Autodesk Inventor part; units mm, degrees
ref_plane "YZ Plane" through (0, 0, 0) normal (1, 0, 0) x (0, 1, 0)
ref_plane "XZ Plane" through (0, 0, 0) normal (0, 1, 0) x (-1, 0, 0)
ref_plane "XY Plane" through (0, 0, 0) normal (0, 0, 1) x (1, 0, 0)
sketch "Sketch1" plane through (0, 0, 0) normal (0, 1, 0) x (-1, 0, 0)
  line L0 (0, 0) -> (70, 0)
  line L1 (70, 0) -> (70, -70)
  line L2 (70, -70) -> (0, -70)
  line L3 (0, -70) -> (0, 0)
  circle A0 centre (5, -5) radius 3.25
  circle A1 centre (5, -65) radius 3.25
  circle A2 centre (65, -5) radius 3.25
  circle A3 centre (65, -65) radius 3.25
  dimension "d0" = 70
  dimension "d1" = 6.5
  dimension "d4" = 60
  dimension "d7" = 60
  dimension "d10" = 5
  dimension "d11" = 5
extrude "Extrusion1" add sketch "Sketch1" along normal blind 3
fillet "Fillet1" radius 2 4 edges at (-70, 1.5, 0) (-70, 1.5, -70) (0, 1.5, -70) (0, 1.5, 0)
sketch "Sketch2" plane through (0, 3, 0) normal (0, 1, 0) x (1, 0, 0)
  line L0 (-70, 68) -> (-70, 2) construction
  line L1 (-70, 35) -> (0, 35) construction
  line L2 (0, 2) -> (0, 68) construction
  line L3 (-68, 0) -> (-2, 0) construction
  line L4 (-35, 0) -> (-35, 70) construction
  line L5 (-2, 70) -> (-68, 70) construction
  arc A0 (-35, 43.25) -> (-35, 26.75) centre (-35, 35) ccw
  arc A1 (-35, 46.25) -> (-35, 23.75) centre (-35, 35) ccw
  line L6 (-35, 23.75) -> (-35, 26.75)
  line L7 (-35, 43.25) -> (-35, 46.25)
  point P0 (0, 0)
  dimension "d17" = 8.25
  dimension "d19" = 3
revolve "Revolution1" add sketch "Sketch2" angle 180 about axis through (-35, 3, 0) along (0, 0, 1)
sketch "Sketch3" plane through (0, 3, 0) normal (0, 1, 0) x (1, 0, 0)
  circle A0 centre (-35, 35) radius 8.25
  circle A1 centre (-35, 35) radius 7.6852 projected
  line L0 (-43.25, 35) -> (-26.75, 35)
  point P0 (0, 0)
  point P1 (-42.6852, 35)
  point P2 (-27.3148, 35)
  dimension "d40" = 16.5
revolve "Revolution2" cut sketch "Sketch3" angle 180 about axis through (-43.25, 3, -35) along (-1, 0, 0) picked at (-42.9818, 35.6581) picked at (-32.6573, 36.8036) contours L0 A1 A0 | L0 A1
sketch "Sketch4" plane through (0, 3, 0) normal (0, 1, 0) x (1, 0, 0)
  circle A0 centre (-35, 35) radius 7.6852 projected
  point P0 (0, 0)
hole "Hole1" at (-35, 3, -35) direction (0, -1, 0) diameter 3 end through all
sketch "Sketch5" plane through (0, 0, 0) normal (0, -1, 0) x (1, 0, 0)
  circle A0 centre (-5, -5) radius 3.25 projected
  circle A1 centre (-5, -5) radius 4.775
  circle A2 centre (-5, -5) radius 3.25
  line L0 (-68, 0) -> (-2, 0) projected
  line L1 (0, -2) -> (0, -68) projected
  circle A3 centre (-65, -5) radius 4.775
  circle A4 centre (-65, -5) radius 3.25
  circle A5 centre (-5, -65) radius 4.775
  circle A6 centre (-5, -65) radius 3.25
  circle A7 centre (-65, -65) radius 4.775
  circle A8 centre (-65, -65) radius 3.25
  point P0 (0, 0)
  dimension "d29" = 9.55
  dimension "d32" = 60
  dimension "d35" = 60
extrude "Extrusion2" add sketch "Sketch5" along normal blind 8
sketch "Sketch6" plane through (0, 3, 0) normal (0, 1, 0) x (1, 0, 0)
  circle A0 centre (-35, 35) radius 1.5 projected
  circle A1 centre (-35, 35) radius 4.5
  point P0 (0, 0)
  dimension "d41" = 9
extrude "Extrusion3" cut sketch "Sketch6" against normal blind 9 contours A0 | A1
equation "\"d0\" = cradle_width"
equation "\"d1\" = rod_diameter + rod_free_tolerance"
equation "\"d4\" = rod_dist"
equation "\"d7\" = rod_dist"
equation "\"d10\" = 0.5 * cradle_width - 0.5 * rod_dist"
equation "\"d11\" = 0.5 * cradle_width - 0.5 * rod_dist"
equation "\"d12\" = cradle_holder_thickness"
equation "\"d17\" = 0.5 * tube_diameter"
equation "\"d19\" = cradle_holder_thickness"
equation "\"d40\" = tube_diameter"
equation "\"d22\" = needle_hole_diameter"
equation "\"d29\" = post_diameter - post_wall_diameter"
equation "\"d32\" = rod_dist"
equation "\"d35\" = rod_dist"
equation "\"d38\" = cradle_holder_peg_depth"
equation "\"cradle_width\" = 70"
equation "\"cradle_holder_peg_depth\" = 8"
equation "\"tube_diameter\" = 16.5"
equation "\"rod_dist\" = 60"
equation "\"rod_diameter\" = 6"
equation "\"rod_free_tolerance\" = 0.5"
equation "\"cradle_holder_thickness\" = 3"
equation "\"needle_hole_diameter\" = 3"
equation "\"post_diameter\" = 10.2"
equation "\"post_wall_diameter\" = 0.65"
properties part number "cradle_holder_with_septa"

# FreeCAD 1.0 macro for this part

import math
import FreeCAD as App
import Part
import Sketcher
Q = App.Units.Quantity


def edges_at(feature, points):
    """Names of the edges that pass closest to the given points."""
    edges = feature.Shape.Edges
    near = lambda p: min(range(len(edges)), key=lambda i: edges[i].distToShape(Part.Vertex(*p))[0])
    return sorted({f"Edge{near(p) + 1}" for p in points})


def add_polygon(sketch, points):
    """Adds a closed chain of lines whose ends are joined by coincident constraints."""
    first, n = sketch.GeometryCount, len(points)
    for a, b in zip(points, points[1:] + points[:1]):
        sketch.addGeometry(Part.LineSegment(App.Vector(*a, 0), App.Vector(*b, 0)), False)
    for i in range(n):
        sketch.addConstraint(Sketcher.Constraint("Coincident", first + i, 2, first + (i + 1) % n, 1))

doc = App.newDocument("Part")
body = doc.addObject("PartDesign::Body", "Body")

sketch1 = body.newObject("Sketcher::SketchObject", "Sketch")
sketch1.AttachmentSupport = (doc.getObject("XZ_Plane"), [""])
sketch1.MapMode = "FlatFace"
add_polygon(sketch1, [(-70, 0), (0, 0), (0, -70), (-70, -70)])
sketch1.addGeometry(Part.Circle(App.Vector(-5, -65, 0), App.Vector(0, 0, 1), 3.2), False)
sketch1.addGeometry(Part.Circle(App.Vector(-65, -65, 0), App.Vector(0, 0, 1), 3.2), False)
sketch1.addGeometry(Part.Circle(App.Vector(-5, -5, 0), App.Vector(0, 0, 1), 3.2), False)
sketch1.addGeometry(Part.Circle(App.Vector(-65, -5, 0), App.Vector(0, 0, 1), 3.2), False)
sketch1.addConstraint([
    Sketcher.Constraint("Horizontal", 0),
    Sketcher.Constraint("Vertical", 1),
    Sketcher.Constraint("Horizontal", 2),
    Sketcher.Constraint("Vertical", 3),
    Sketcher.Constraint("Coincident", 0, 2, -1, 1),
    Sketcher.Constraint("Equal", 4, 5),
    Sketcher.Constraint("Equal", 5, 6),
    Sketcher.Constraint("Equal", 6, 7),
    Sketcher.Constraint("Horizontal", 4, 3, 5, 3),
    Sketcher.Constraint("Horizontal", 6, 3, 7, 3),
    Sketcher.Constraint("Vertical", 4, 3, 6, 3),
    Sketcher.Constraint("Vertical", 5, 3, 7, 3),
    Sketcher.Constraint("Equal", 2, 1),
    Sketcher.Constraint("Diameter", 4, Q("6.5 mm")),
    Sketcher.Constraint("DistanceX", 0, 1, 0, 2, Q("70 mm")),
    Sketcher.Constraint("DistanceX", 4, 3, -1, 1, Q("5 mm")),
    Sketcher.Constraint("DistanceY", 6, 3, -1, 1, Q("5 mm")),
    Sketcher.Constraint("DistanceX", 5, 3, 4, 3, Q("60 mm")),
    Sketcher.Constraint("DistanceY", 4, 3, 6, 3, Q("60 mm")),
])
pad1 = body.newObject("PartDesign::Pad", "Pad")
pad1.Profile = sketch1
pad1.Length = 3
pad1.Reversed = True
doc.recompute()

fillet = body.newObject("PartDesign::Fillet", "Fillet")
fillet.Base = (pad1, edges_at(pad1, [
    (-70, 1.5, 0),
    (-70, 1.5, -70),
    (0, 1.5, -70),
    (0, 1.5, 0),
]))
fillet.Radius = 2

sketch2 = body.newObject("Sketcher::SketchObject", "Sketch001")
sketch2.AttachmentSupport = (doc.getObject("XZ_Plane"), [""])
sketch2.MapMode = "FlatFace"
sketch2.AttachmentOffset = App.Placement(App.Vector(0, 0, -3), App.Rotation())
sketch2.addGeometry([
    Part.ArcOfCircle(Part.Circle(App.Vector(-35, -35, 0), App.Vector(0, 0, 1), 8.2), math.radians(90), math.radians(270)),
    Part.LineSegment(App.Vector(-35, -43.2, 0), App.Vector(-35, -46.2, 0)),
    Part.ArcOfCircle(Part.Circle(App.Vector(-35, -35, 0), App.Vector(0, 0, 1), 11.2), math.radians(90), math.radians(270)),
    Part.LineSegment(App.Vector(-35, -23.8, 0), App.Vector(-35, -26.8, 0)),
], False)
sketch2.addGeometry(Part.LineSegment(App.Vector(-35, -46.2, 0), App.Vector(-35, -23.8, 0)), True)
sketch2.addConstraint([
    Sketcher.Constraint("Coincident", 0, 2, 1, 1),
    Sketcher.Constraint("Coincident", 1, 2, 2, 2),
    Sketcher.Constraint("Coincident", 2, 1, 3, 1),
    Sketcher.Constraint("Coincident", 3, 2, 0, 1),
    Sketcher.Constraint("Vertical", 1),
    Sketcher.Constraint("Vertical", 3),
    Sketcher.Constraint("Vertical", 4),
    Sketcher.Constraint("Coincident", 2, 3, 0, 3),
    Sketcher.Constraint("Coincident", 4, 1, 1, 2),
    Sketcher.Constraint("Coincident", 4, 2, 2, 1),
    Sketcher.Constraint("Vertical", 2, 3, 0, 2),
    Sketcher.Constraint("DistanceY", 1, 2, 1, 1, Q("3 mm")),
    Sketcher.Constraint("Radius", 0, Q("8.25 mm")),
    Sketcher.Constraint("DistanceX", 0, 3, -1, 1, Q("35 mm")),
    Sketcher.Constraint("DistanceY", 0, 3, -1, 1, Q("35 mm")),
])
revolution = body.newObject("PartDesign::Revolution", "Revolution")
revolution.Profile = sketch2
revolution.ReferenceAxis = (sketch2, ["Axis0"])
revolution.Angle = 180

sketch3 = body.newObject("Sketcher::SketchObject", "Sketch002")
sketch3.AttachmentSupport = (doc.getObject("XZ_Plane"), [""])
sketch3.MapMode = "FlatFace"
sketch3.AttachmentOffset = App.Placement(App.Vector(0, 0, -3), App.Rotation())
sketch3.addGeometry([
    Part.ArcOfCircle(Part.Circle(App.Vector(-35, -35, 0), App.Vector(0, 0, 1), 8), math.radians(180), math.radians(360)),
    Part.LineSegment(App.Vector(-43, -35, 0), App.Vector(-27, -35, 0)),
], False)
sketch3.addGeometry(Part.LineSegment(App.Vector(-27, -35, 0), App.Vector(-43, -35, 0)), True)
sketch3.addConstraint([
    Sketcher.Constraint("Coincident", 0, 1, 1, 1),
    Sketcher.Constraint("Coincident", 1, 2, 0, 2),
    Sketcher.Constraint("Horizontal", 1),
    Sketcher.Constraint("Horizontal", 2),
    Sketcher.Constraint("Coincident", 2, 1, 1, 2),
    Sketcher.Constraint("Equal", 1, 2),
    Sketcher.Constraint("Radius", 0, Q("8.25 mm")),
    Sketcher.Constraint("DistanceX", 0, 3, -1, 1, Q("35 mm")),
    Sketcher.Constraint("DistanceY", 0, 3, -1, 1, Q("35 mm")),
    Sketcher.Constraint("DistanceY", 0, 1, -1, 1, Q("35 mm")),
])
groove = body.newObject("PartDesign::Groove", "Groove")
groove.Profile = sketch3
groove.ReferenceAxis = (sketch3, ["Axis0"])
groove.Angle = 180

sketch4 = body.newObject("Sketcher::SketchObject", "Sketch003")
sketch4.AttachmentSupport = (doc.getObject("XZ_Plane"), [""])
sketch4.MapMode = "FlatFace"
sketch4.AttachmentOffset = App.Placement(App.Vector(0, 0, -3), App.Rotation())
sketch4.addGeometry(Part.Circle(App.Vector(-35, -35, 0), App.Vector(0, 0, 1), 1.5), False)
sketch4.addConstraint([
    Sketcher.Constraint("Diameter", 0, Q("3 mm")),
    Sketcher.Constraint("DistanceX", 0, 3, -1, 1, Q("35 mm")),
    Sketcher.Constraint("DistanceY", 0, 3, -1, 1, Q("35 mm")),
])
doc.recompute()
hole = body.newObject("PartDesign::Hole", "Hole")
hole.Profile = sketch4
hole.ThreadType = "None"
hole.Diameter = 3
hole.DepthType = "ThroughAll"
hole.Reversed = True

sketch5 = body.newObject("Sketcher::SketchObject", "Sketch004")
sketch5.AttachmentSupport = (doc.getObject("XZ_Plane"), [""])
sketch5.MapMode = "FlatFace"
sketch5.addGeometry([
    Part.Circle(App.Vector(-5, -5, 0), App.Vector(0, 0, 1), 4.8),
    Part.Circle(App.Vector(-5, -5, 0), App.Vector(0, 0, 1), 3.2),
    Part.Circle(App.Vector(-65, -5, 0), App.Vector(0, 0, 1), 4.8),
    Part.Circle(App.Vector(-65, -5, 0), App.Vector(0, 0, 1), 3.2),
    Part.Circle(App.Vector(-5, -65, 0), App.Vector(0, 0, 1), 4.8),
    Part.Circle(App.Vector(-5, -65, 0), App.Vector(0, 0, 1), 3.2),
    Part.Circle(App.Vector(-65, -65, 0), App.Vector(0, 0, 1), 4.8),
    Part.Circle(App.Vector(-65, -65, 0), App.Vector(0, 0, 1), 3.2),
], False)
sketch5.addConstraint([
    Sketcher.Constraint("Coincident", 1, 3, 0, 3),
    Sketcher.Constraint("Coincident", 3, 3, 2, 3),
    Sketcher.Constraint("Coincident", 5, 3, 4, 3),
    Sketcher.Constraint("Coincident", 7, 3, 6, 3),
    Sketcher.Constraint("Equal", 0, 2),
    Sketcher.Constraint("Equal", 1, 3),
    Sketcher.Constraint("Equal", 2, 4),
    Sketcher.Constraint("Equal", 3, 5),
    Sketcher.Constraint("Equal", 4, 6),
    Sketcher.Constraint("Equal", 5, 7),
    Sketcher.Constraint("Horizontal", 1, 3, 2, 3),
    Sketcher.Constraint("Horizontal", 5, 3, 6, 3),
    Sketcher.Constraint("Vertical", 1, 3, 4, 3),
    Sketcher.Constraint("Vertical", 3, 3, 6, 3),
    Sketcher.Constraint("Diameter", 0, Q("9.55 mm")),
    Sketcher.Constraint("DistanceX", 2, 3, 0, 3, Q("60 mm")),
    Sketcher.Constraint("DistanceY", 4, 3, 0, 3, Q("60 mm")),
    Sketcher.Constraint("Diameter", 1, Q("6.5 mm")),
    Sketcher.Constraint("DistanceX", 0, 3, -1, 1, Q("5 mm")),
    Sketcher.Constraint("DistanceY", 0, 3, -1, 1, Q("5 mm")),
])
pad2 = body.newObject("PartDesign::Pad", "Pad001")
pad2.Profile = sketch5
pad2.Length = 8

sketch6 = body.newObject("Sketcher::SketchObject", "Sketch005")
sketch6.AttachmentSupport = (doc.getObject("XZ_Plane"), [""])
sketch6.MapMode = "FlatFace"
sketch6.AttachmentOffset = App.Placement(App.Vector(0, 0, -3), App.Rotation())
sketch6.addGeometry(Part.Circle(App.Vector(-35, -35, 0), App.Vector(0, 0, 1), 4.5), False)
sketch6.addConstraint([
    Sketcher.Constraint("Diameter", 0, Q("9 mm")),
    Sketcher.Constraint("DistanceX", 0, 3, -1, 1, Q("35 mm")),
    Sketcher.Constraint("DistanceY", 0, 3, -1, 1, Q("35 mm")),
])
pocket1 = body.newObject("PartDesign::Pocket", "Pocket")
pocket1.Profile = sketch6
pocket1.Length = 9
pocket1.Reversed = True

doc.recompute()
